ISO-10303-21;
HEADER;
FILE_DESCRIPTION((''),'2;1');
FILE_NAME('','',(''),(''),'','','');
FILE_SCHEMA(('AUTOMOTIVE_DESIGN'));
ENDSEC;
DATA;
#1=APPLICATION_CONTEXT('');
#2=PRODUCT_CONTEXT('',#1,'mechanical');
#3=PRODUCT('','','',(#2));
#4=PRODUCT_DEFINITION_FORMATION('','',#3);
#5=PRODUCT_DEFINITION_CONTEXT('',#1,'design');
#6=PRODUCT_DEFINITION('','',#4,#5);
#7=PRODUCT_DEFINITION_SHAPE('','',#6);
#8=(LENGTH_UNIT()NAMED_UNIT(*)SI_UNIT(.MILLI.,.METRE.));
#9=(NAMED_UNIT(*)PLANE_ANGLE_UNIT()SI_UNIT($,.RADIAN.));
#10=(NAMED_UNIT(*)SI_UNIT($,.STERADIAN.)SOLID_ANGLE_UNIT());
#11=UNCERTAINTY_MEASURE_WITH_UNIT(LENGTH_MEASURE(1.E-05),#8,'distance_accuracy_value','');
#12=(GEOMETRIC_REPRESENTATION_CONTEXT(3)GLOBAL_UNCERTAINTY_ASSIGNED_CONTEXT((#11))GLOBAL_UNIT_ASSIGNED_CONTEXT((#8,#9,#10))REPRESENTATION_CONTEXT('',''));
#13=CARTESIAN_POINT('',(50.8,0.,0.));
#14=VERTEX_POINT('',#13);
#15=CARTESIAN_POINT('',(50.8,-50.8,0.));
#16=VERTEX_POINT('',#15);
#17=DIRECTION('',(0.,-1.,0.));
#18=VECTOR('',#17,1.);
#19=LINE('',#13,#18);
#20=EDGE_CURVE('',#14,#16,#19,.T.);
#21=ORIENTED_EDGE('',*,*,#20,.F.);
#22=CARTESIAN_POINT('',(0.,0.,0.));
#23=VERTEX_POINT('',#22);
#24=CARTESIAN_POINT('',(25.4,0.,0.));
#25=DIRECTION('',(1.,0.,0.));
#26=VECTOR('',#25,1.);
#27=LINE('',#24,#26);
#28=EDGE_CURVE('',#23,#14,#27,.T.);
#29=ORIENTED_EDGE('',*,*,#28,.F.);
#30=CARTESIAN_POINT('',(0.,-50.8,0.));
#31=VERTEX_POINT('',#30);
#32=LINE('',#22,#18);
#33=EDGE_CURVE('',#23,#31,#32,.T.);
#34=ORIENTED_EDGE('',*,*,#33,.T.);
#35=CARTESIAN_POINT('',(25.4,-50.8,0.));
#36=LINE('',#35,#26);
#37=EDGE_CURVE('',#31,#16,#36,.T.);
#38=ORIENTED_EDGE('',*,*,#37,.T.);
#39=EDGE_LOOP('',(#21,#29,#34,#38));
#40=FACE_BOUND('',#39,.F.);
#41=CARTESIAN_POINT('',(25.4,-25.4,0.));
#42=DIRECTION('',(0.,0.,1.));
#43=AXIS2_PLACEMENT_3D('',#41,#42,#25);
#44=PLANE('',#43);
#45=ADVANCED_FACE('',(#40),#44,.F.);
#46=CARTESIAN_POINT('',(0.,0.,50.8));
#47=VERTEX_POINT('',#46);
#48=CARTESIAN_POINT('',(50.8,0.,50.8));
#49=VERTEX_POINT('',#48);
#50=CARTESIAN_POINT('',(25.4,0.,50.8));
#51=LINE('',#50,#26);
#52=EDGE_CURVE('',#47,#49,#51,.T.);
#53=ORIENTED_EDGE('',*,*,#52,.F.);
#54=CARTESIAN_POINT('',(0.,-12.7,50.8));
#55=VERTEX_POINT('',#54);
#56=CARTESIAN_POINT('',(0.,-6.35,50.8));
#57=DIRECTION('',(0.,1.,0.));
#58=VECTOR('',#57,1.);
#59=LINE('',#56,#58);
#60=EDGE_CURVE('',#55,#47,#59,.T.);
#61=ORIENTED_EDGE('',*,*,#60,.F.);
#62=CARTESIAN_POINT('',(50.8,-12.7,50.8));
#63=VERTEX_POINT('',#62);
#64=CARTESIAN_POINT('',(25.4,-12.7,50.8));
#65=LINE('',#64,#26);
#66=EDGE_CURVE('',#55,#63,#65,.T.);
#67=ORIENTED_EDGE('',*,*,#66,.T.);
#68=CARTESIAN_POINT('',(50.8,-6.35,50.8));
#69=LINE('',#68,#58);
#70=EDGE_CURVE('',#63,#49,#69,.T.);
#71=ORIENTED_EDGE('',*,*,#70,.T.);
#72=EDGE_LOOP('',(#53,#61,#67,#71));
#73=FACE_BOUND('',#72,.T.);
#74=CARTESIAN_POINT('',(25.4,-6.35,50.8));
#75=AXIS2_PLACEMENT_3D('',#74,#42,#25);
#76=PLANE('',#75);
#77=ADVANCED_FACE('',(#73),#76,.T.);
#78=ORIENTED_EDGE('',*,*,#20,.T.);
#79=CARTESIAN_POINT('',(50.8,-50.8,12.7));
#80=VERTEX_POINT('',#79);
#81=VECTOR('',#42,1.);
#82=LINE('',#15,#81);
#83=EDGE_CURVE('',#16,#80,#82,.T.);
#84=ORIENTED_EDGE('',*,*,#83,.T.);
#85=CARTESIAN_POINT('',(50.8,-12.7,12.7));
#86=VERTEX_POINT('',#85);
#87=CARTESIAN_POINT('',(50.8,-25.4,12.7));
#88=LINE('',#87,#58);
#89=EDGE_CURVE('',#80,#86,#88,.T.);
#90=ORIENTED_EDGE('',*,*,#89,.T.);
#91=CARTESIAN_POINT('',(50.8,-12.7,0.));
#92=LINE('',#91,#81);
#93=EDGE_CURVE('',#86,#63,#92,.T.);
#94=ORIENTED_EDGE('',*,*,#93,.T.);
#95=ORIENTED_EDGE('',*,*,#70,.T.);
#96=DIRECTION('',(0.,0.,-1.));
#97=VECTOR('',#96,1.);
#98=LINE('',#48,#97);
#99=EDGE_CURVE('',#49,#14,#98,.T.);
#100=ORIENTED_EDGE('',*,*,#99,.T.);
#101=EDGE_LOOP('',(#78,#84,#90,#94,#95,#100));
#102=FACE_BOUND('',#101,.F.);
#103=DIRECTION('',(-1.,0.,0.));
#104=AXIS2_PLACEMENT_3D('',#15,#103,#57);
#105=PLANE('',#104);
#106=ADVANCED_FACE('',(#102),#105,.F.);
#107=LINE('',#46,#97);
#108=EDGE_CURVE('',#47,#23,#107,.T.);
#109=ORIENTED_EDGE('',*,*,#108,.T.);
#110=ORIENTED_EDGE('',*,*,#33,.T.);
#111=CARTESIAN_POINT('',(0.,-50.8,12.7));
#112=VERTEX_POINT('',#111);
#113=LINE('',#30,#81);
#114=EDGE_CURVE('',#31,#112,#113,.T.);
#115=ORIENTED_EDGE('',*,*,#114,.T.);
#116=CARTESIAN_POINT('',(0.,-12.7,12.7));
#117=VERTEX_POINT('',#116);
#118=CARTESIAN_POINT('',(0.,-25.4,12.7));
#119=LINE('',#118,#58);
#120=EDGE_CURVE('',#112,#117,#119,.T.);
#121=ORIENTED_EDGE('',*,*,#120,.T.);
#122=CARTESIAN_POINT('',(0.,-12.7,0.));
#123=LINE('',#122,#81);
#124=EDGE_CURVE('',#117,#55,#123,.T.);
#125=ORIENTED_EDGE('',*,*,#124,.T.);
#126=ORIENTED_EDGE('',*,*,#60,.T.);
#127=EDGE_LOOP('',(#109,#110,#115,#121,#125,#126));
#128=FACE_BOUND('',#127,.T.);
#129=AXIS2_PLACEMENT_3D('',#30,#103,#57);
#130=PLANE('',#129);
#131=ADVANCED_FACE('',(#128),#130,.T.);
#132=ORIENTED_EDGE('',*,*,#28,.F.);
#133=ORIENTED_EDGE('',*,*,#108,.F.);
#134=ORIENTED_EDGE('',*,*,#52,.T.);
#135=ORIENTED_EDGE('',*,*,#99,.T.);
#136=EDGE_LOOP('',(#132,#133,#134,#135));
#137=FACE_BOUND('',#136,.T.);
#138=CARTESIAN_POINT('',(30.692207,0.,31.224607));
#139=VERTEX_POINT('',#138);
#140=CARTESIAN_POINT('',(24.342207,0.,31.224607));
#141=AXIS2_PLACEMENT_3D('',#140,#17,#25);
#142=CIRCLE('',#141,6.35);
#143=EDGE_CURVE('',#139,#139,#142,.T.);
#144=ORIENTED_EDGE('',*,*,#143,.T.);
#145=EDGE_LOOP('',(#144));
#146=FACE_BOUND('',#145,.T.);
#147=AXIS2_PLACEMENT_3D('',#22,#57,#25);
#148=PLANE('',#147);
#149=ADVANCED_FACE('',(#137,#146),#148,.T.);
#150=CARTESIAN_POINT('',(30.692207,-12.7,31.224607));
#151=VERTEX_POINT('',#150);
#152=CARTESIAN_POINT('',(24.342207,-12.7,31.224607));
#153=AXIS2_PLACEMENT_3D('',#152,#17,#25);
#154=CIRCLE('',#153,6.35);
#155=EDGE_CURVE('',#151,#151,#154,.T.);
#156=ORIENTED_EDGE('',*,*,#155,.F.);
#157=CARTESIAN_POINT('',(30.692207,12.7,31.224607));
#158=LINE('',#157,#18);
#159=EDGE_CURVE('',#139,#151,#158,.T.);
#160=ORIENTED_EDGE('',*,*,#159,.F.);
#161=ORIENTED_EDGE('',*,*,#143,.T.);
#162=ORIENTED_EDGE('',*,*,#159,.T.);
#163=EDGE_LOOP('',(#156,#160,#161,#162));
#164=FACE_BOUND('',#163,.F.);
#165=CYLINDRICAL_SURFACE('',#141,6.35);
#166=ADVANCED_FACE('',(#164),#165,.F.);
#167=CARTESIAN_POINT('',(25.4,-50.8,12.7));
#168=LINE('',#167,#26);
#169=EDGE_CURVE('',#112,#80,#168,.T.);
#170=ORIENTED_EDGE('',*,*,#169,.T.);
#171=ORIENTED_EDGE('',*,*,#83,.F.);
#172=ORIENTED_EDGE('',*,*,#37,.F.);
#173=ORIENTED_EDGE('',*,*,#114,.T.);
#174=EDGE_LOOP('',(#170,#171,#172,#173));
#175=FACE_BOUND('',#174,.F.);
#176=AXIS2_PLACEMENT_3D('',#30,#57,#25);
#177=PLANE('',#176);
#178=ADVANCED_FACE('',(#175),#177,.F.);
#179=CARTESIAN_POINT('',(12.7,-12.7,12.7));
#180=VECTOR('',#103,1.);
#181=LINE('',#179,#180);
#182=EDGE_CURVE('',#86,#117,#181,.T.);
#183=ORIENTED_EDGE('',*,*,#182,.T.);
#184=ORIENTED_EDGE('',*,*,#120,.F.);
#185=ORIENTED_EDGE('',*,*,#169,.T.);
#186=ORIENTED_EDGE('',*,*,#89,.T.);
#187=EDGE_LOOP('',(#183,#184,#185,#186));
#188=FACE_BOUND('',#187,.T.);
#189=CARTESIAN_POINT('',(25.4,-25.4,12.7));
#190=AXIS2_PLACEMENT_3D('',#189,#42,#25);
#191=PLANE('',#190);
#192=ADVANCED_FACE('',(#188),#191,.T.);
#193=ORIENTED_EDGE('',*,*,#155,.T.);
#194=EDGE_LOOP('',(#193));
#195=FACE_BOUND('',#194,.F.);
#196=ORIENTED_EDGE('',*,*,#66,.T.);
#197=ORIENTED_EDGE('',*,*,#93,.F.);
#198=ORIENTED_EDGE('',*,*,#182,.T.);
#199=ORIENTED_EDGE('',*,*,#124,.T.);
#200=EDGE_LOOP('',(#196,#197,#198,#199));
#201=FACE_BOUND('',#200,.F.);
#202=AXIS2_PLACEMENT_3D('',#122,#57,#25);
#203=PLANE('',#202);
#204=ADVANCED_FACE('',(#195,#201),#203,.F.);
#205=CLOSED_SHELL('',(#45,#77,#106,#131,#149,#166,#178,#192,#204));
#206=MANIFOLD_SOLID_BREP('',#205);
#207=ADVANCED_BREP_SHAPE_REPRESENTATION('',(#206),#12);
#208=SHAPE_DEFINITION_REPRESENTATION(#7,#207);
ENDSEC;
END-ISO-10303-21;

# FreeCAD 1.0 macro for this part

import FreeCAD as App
import Part
import Sketcher

V = App.Vector
Q = App.Units.Quantity

doc = App.newDocument("Part")
params = doc.addObject("Spreadsheet::Sheet", "Params")
for row, (alias, value) in enumerate([
    ("sketch1_width", "2 in"),
    ("pad1_length", "0.5 in"),
    ("sketch2_width", "2 in"),
    ("sketch2_height", "0.5 in"),
    ("pad2_length", "2 in"),
    ("sketch3_diameter", "0.5 in"),
    ("pocket1_length", "1 in"),
], start=1):
    params.set(f"A{row}", alias)
    params.set(f"B{row}", "=" + value)
    params.setAlias(f"B{row}", alias)

body = doc.addObject("PartDesign::Body", "Body")

# Sketch on XY plane
sketch1 = body.newObject("Sketcher::SketchObject", "Sketch")
sketch1.AttachmentSupport = (doc.getObject("XY_Plane"), [""])
sketch1.MapMode = "FlatFace"
sketch1.addGeometry(Part.LineSegment(V(0, 0, 0), V(0, -51, 0)), False)
sketch1.addGeometry(Part.LineSegment(V(0, -51, 0), V(51, -51, 0)), False)
sketch1.addGeometry(Part.LineSegment(V(51, -51, 0), V(51, 0, 0)), False)
sketch1.addGeometry(Part.LineSegment(V(51, 0, 0), V(0, 0, 0)), False)
sketch1.addConstraint(Sketcher.Constraint("Coincident", 0, 2, 1, 1))
sketch1.addConstraint(Sketcher.Constraint("Coincident", 1, 2, 2, 1))
sketch1.addConstraint(Sketcher.Constraint("Coincident", 2, 2, 3, 1))
sketch1.addConstraint(Sketcher.Constraint("Coincident", 3, 2, 0, 1))
sketch1.addConstraint(Sketcher.Constraint("Vertical", 0))
sketch1.addConstraint(Sketcher.Constraint("Horizontal", 1))
sketch1.addConstraint(Sketcher.Constraint("Vertical", 2))
sketch1.addConstraint(Sketcher.Constraint("Horizontal", 3))
sketch1.addConstraint(Sketcher.Constraint("Coincident", 3, 2, -1, 1))
sketch1.addConstraint(Sketcher.Constraint("Equal", 3, 0))
sketch1.addConstraint(Sketcher.Constraint("DistanceX", 1, 1, 1, 2, Q("2 in")))
sketch1.setExpression("Constraints[10]", "Params.sketch1_width")
pad1 = body.newObject("PartDesign::Pad", "Pad")
pad1.Profile = sketch1
pad1.setExpression("Length", "Params.pad1_length")

# Sketch on XY plane
sketch2 = body.newObject("Sketcher::SketchObject", "Sketch001")
sketch2.AttachmentSupport = (doc.getObject("XY_Plane"), [""])
sketch2.MapMode = "FlatFace"
sketch2.addGeometry(Part.LineSegment(V(0, 0, 0), V(0, -13, 0)), False)
sketch2.addGeometry(Part.LineSegment(V(0, -13, 0), V(51, -13, 0)), False)
sketch2.addGeometry(Part.LineSegment(V(51, -13, 0), V(51, 0, 0)), False)
sketch2.addGeometry(Part.LineSegment(V(51, 0, 0), V(0, 0, 0)), False)
sketch2.addConstraint(Sketcher.Constraint("Coincident", 0, 2, 1, 1))
sketch2.addConstraint(Sketcher.Constraint("Coincident", 1, 2, 2, 1))
sketch2.addConstraint(Sketcher.Constraint("Coincident", 2, 2, 3, 1))
sketch2.addConstraint(Sketcher.Constraint("Coincident", 3, 2, 0, 1))
sketch2.addConstraint(Sketcher.Constraint("Vertical", 0))
sketch2.addConstraint(Sketcher.Constraint("Horizontal", 1))
sketch2.addConstraint(Sketcher.Constraint("Vertical", 2))
sketch2.addConstraint(Sketcher.Constraint("Horizontal", 3))
sketch2.addConstraint(Sketcher.Constraint("Coincident", 3, 2, -1, 1))
sketch2.addConstraint(Sketcher.Constraint("DistanceX", 1, 1, 1, 2, Q("2 in")))
sketch2.addConstraint(Sketcher.Constraint("DistanceY", 0, 2, 0, 1, Q("0.5 in")))
sketch2.setExpression("Constraints[9]", "Params.sketch2_width")
sketch2.setExpression("Constraints[10]", "Params.sketch2_height")
pad2 = body.newObject("PartDesign::Pad", "Pad001")
pad2.Profile = sketch2
pad2.setExpression("Length", "Params.pad2_length")

# Sketch on XZ plane
sketch3 = body.newObject("Sketcher::SketchObject", "Sketch002")
sketch3.AttachmentSupport = (doc.getObject("XZ_Plane"), [""])
sketch3.MapMode = "FlatFace"
sketch3.addGeometry(Part.Circle(V(24, 31, 0), V(0, 0, 1), 6), False)
sketch3.addConstraint(Sketcher.Constraint("Diameter", 0, Q("0.5 in")))
sketch3.addConstraint(Sketcher.Constraint("DistanceX", -1, 1, 0, 3, Q("24.342207 mm")))
sketch3.addConstraint(Sketcher.Constraint("DistanceY", -1, 1, 0, 3, Q("31.224607 mm")))
sketch3.setExpression("Constraints[0]", "Params.sketch3_diameter")
pocket1 = body.newObject("PartDesign::Pocket", "Pocket")
pocket1.Profile = sketch3
pocket1.setExpression("Length", "Params.pocket1_length")
pocket1.Midplane = True

doc.recompute()
